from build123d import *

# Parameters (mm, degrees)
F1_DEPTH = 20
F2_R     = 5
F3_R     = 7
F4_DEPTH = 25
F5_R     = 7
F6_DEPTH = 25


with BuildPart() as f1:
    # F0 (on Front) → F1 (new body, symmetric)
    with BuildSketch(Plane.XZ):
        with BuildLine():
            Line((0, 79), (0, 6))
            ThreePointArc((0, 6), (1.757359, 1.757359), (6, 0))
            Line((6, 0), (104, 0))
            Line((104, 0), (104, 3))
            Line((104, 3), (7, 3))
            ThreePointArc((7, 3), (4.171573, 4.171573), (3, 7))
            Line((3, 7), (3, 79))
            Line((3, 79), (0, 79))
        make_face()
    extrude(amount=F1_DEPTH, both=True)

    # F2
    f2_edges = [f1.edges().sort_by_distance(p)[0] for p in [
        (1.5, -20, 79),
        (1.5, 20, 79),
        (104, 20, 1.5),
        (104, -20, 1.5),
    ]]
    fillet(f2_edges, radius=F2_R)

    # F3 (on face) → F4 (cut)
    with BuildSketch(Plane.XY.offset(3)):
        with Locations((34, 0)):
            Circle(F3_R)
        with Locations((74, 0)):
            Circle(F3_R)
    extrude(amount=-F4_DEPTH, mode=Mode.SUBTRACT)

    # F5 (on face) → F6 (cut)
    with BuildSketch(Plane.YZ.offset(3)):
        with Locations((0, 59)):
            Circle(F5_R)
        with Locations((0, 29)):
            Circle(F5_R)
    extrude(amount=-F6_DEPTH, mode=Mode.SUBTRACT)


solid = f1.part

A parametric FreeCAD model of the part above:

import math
import FreeCAD as App
import Part
import Sketcher

V = App.Vector


def edges_at(feature, points):
    """Names of the edges that pass closest to the given points."""
    edges = feature.Shape.Edges
    near = lambda p: min(range(len(edges)), key=lambda i: edges[i].distToShape(Part.Vertex(*p))[0])
    return sorted({f"Edge{near(p) + 1}" for p in points})

doc = App.newDocument("Part")
body = doc.addObject("PartDesign::Body", "Body")

sketch1 = body.newObject("Sketcher::SketchObject", "Sketch")
sketch1.AttachmentSupport = (doc.getObject("XZ_Plane"), [""])
sketch1.MapMode = "FlatFace"
sketch1.addGeometry([
    Part.LineSegment(V(0, 79, 0), V(0, 6, 0)),
    Part.ArcOfCircle(Part.Circle(V(5.999999, 5.999999, 0), V(0, 0, 1), 5.999999), math.radians(179.99999), math.radians(270.00001)),
    Part.LineSegment(V(6, 0, 0), V(104, 0, 0)),
    Part.LineSegment(V(104, 0, 0), V(104, 3, 0)),
    Part.LineSegment(V(104, 3, 0), V(7, 3, 0)),
    Part.ArcOfCircle(Part.Circle(V(7, 7, 0), V(0, 0, 1), 4), math.radians(-179.999994), math.radians(-90.000006)),
    Part.LineSegment(V(3, 7, 0), V(3, 79, 0)),
    Part.LineSegment(V(3, 79, 0), V(0, 79, 0)),
], False)
sketch1.addConstraint([
    Sketcher.Constraint("Tangent", 0, 2, 1, 1),
    Sketcher.Constraint("Tangent", 1, 2, 2, 1),
    Sketcher.Constraint("Coincident", 2, 2, 3, 1),
    Sketcher.Constraint("Coincident", 3, 2, 4, 1),
    Sketcher.Constraint("Tangent", 4, 2, 5, 2),
    Sketcher.Constraint("Tangent", 5, 1, 6, 1),
    Sketcher.Constraint("Coincident", 6, 2, 7, 1),
    Sketcher.Constraint("Coincident", 7, 2, 0, 1),
    Sketcher.Constraint("Vertical", 0),
    Sketcher.Constraint("Horizontal", 2),
    Sketcher.Constraint("Vertical", 3),
    Sketcher.Constraint("Horizontal", 4),
    Sketcher.Constraint("Vertical", 6),
    Sketcher.Constraint("Horizontal", 7),
    Sketcher.Constraint("PointOnObject", 0, 2, -2),
    Sketcher.Constraint("PointOnObject", 1, 2, -1),
    Sketcher.Constraint("Equal", 7, 3),
    Sketcher.Constraint("Radius", 1, 5.999999),
    Sketcher.Constraint("Radius", 5, 4.0),
    Sketcher.Constraint("DistanceX", 2, 1, 2, 2, 98.0),
    Sketcher.Constraint("DistanceX", 4, 2, 4, 1, 97.0),
    Sketcher.Constraint("DistanceY", 0, 2, 0, 1, 73.0),
])
pad1 = body.newObject("PartDesign::Pad", "Pad")
pad1.Profile = sketch1
pad1.Length = 40
pad1.Midplane = True
doc.recompute()

fillet = body.newObject("PartDesign::Fillet", "Fillet")
fillet.Base = (pad1, edges_at(pad1, [
    (1.5, -20, 79),
    (1.5, 20, 79),
    (104, 20, 1.5),
    (104, -20, 1.5),
]))
fillet.Radius = 5

sketch2 = body.newObject("Sketcher::SketchObject", "Sketch001")
sketch2.AttachmentSupport = (doc.getObject("XY_Plane"), [""])
sketch2.MapMode = "FlatFace"
sketch2.AttachmentOffset = App.Placement(V(0, 0, 3), App.Rotation())
sketch2.addGeometry([
    Part.Circle(V(34, 0, 0), V(0, 0, 1), 7),
    Part.Circle(V(74, 0, 0), V(0, 0, 1), 7),
], False)
sketch2.addConstraint([
    Sketcher.Constraint("Equal", 0, 1),
    Sketcher.Constraint("PointOnObject", 0, 3, -1),
    Sketcher.Constraint("PointOnObject", 1, 3, -1),
    Sketcher.Constraint("Diameter", 0, 14.0),
    Sketcher.Constraint("DistanceX", -1, 1, 0, 3, 34.0),
    Sketcher.Constraint("DistanceX", -1, 1, 1, 3, 74.0),
])
pocket1 = body.newObject("PartDesign::Pocket", "Pocket")
pocket1.Profile = sketch2
pocket1.Length = 25

sketch3 = body.newObject("Sketcher::SketchObject", "Sketch002")
sketch3.AttachmentSupport = (doc.getObject("YZ_Plane"), [""])
sketch3.MapMode = "FlatFace"
sketch3.AttachmentOffset = App.Placement(V(0, 0, 3), App.Rotation())
sketch3.addGeometry([
    Part.Circle(V(0, 59, 0), V(0, 0, 1), 7),
    Part.Circle(V(0, 29, 0), V(0, 0, 1), 7),
], False)
sketch3.addConstraint([
    Sketcher.Constraint("Equal", 0, 1),
    Sketcher.Constraint("PointOnObject", 0, 3, -2),
    Sketcher.Constraint("PointOnObject", 1, 3, -2),
    Sketcher.Constraint("Diameter", 0, 14.0),
    Sketcher.Constraint("DistanceY", -1, 1, 0, 3, 59.0),
    Sketcher.Constraint("DistanceY", -1, 1, 1, 3, 29.0),
])
pocket2 = body.newObject("PartDesign::Pocket", "Pocket001")
pocket2.Profile = sketch3
pocket2.Length = 25

doc.recompute()
